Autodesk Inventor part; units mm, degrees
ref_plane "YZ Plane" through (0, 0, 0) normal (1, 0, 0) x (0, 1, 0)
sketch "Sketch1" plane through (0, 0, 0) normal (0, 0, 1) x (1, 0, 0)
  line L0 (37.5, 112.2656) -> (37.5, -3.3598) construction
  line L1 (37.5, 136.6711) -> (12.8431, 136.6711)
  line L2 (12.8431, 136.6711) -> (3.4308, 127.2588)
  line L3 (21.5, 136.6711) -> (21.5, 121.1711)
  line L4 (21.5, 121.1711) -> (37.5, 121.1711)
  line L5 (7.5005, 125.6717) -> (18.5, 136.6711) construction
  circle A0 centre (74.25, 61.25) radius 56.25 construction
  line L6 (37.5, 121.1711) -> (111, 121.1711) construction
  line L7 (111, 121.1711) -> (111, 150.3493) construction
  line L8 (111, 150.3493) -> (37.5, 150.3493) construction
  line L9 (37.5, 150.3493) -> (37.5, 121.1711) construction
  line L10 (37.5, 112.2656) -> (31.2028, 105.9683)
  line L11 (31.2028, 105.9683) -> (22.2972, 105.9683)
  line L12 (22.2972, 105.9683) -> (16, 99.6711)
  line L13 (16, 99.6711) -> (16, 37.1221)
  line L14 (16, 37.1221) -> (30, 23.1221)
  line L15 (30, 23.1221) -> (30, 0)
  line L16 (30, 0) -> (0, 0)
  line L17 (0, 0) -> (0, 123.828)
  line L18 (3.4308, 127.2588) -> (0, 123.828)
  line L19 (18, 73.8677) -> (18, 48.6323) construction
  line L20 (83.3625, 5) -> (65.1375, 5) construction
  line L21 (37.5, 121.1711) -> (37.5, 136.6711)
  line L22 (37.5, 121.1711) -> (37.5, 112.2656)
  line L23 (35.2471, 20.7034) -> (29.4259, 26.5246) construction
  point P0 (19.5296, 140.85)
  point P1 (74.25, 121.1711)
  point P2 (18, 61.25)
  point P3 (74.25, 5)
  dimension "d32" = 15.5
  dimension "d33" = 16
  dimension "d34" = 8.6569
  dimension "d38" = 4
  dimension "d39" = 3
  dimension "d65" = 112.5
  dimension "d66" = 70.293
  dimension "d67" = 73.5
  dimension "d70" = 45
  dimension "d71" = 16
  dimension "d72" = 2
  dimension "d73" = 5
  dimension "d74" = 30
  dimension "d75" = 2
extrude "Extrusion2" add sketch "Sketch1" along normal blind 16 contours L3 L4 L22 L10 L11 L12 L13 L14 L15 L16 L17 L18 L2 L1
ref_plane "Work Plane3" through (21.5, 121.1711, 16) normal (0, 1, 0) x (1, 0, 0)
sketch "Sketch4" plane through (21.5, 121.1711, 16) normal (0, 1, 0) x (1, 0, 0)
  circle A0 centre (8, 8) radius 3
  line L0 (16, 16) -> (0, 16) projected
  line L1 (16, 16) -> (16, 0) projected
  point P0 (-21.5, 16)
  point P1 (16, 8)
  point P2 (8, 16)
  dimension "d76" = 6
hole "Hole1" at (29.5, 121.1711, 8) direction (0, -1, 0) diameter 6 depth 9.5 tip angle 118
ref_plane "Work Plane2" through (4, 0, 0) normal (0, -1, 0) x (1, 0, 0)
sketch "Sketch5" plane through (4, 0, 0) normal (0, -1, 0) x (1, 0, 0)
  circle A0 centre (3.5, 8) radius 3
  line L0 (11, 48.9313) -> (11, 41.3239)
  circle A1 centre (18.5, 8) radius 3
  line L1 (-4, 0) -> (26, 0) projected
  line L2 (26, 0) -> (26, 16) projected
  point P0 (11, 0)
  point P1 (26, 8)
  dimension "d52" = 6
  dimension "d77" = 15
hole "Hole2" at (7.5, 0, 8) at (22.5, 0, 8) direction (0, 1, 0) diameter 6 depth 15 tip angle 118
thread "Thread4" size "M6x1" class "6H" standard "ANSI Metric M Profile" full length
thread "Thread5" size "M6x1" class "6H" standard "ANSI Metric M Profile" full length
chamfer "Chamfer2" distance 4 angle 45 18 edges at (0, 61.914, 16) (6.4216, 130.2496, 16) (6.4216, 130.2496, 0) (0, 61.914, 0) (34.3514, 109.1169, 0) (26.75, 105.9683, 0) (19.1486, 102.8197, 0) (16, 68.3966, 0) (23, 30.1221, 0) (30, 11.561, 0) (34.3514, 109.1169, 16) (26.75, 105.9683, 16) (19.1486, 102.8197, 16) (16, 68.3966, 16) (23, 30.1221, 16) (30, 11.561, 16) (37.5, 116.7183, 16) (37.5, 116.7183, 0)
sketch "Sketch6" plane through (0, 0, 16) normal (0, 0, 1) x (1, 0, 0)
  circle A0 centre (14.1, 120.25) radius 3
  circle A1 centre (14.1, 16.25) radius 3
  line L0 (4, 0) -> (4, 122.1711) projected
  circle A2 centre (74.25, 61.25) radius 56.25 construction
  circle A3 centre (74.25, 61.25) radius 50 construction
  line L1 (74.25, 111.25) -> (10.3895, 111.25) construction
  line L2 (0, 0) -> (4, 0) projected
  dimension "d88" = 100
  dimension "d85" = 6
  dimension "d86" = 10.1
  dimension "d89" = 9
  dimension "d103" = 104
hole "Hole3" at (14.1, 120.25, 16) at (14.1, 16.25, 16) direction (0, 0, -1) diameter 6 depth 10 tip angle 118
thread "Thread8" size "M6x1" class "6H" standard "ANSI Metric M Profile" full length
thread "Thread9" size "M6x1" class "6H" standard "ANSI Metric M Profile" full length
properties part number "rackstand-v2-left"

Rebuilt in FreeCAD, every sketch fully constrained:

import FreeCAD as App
import Part
import Sketcher
from FreeCAD import Vector
Q = App.Units.Quantity


def edges_at(feature, points):
    """Names of the edges that pass closest to the given points."""
    edges = feature.Shape.Edges
    near = lambda p: min(range(len(edges)), key=lambda i: edges[i].distToShape(Part.Vertex(*p))[0])
    return sorted({f"Edge{near(p) + 1}" for p in points})


def add_polygon(sketch, points):
    """Adds a closed chain of lines whose ends are joined by coincident constraints."""
    first, n = sketch.GeometryCount, len(points)
    for a, b in zip(points, points[1:] + points[:1]):
        sketch.addGeometry(Part.LineSegment(App.Vector(*a, 0), App.Vector(*b, 0)), False)
    for i in range(n):
        sketch.addConstraint(Sketcher.Constraint("Coincident", first + i, 2, first + (i + 1) % n, 1))

doc = App.newDocument("Part")
body = doc.addObject("PartDesign::Body", "Body")

# Sketch on XY plane
sketch1 = doc.addObject("Sketcher::SketchObject", "Sketch")
body.addObject(sketch1)
sketch1.AttachmentSupport = (doc.XY_Plane, [""])
sketch1.MapMode = "FlatFace"
add_polygon(sketch1, [(22, 121), (22, 137), (13, 137), (0, 124), (0, 0), (30, 0), (30, 23), (16, 37), (16, 100), (22, 106), (31, 106), (38, 112), (38, 121)])  # lines 0-12
sketch1.addConstraint([
    Sketcher.Constraint("Vertical", 0),
    Sketcher.Constraint("Horizontal", 1),
    Sketcher.Constraint("Vertical", 3),
    Sketcher.Constraint("Horizontal", 4),
    Sketcher.Constraint("Vertical", 5),
    Sketcher.Constraint("Vertical", 7),
    Sketcher.Constraint("Horizontal", 9),
    Sketcher.Constraint("Vertical", 11),
    Sketcher.Constraint("Horizontal", 12),
    Sketcher.Constraint("Coincident", 3, 2, -1, 1),
    Sketcher.Constraint("Perpendicular", 2, 6),
    Sketcher.Constraint("Perpendicular", 6, 8),
    Sketcher.Constraint("Parallel", 8, 10),
    Sketcher.Constraint("Equal", 9, 11),
    Sketcher.Constraint("Equal", 8, 10),
    Sketcher.Constraint("DistanceX", 4, 1, 4, 2, 30.0),
    Sketcher.Constraint("DistanceX", 12, 2, 12, 1, 16.0),
    Sketcher.Constraint("Angle", 8, Q("45 deg")),
    Sketcher.Constraint("DistanceY", 0, 1, 0, 2, 15.5),
    Sketcher.Constraint("DistanceX", -1, 1, 6, 2, 16.0),
    Sketcher.Constraint("DistanceX", 1, 2, 1, 1, 8.657),
    Sketcher.Constraint("DistanceY", 7, 2, 1, 2, 37.0),
    Sketcher.Constraint("DistanceY", 3, 2, 3, 1, 123.828),
    Sketcher.Constraint("DistanceY", 5, 1, 5, 2, 23.122),
    Sketcher.Constraint("DistanceX", 9, 1, 9, 2, 8.9056),
])
pad1 = doc.addObject("PartDesign::Pad", "Pad")
body.addObject(pad1)
pad1.Profile = sketch1
pad1.Length = 16

# Sketch on XZ plane
sketch2 = doc.addObject("Sketcher::SketchObject", "Sketch001")
body.addObject(sketch2)
sketch2.AttachmentSupport = (doc.XZ_Plane, [""])
sketch2.MapMode = "FlatFace"
sketch2.AttachmentOffset = App.Placement(Vector(0, 0, -121.1711), App.Rotation())
sketch2.addGeometry(Part.Circle(Vector(29.5, 8, 0), Vector(0, 0, 1), 3), False)
sketch2.addConstraint([
    Sketcher.Constraint("Diameter", 0, 6.0),
    Sketcher.Constraint("DistanceY", -1, 1, 0, 3, 8.0),
    Sketcher.Constraint("DistanceX", -1, 1, 0, 3, 29.5),
])
doc.recompute()
hole = doc.addObject("PartDesign::Hole", "Hole")
body.addObject(hole)
hole.Profile = sketch2
hole.ThreadType = "None"
hole.Diameter = 6
hole.DepthType = "Dimension"
hole.Depth = 9.5
hole.DrillPoint = "Angled"
hole.DrillPointAngle = 118
hole.Reversed = True

# Sketch on XZ plane
sketch3 = doc.addObject("Sketcher::SketchObject", "Sketch002")
body.addObject(sketch3)
sketch3.AttachmentSupport = (doc.XZ_Plane, [""])
sketch3.MapMode = "FlatFace"
sketch3.addGeometry([
    Part.Circle(Vector(7.5, 8, 0), Vector(0, 0, 1), 3),
    Part.Circle(Vector(22.5, 8, 0), Vector(0, 0, 1), 3),
], False)
sketch3.addConstraint([
    Sketcher.Constraint("Equal", 0, 1),
    Sketcher.Constraint("Horizontal", 0, 3, 1, 3),
    Sketcher.Constraint("Diameter", 0, 6.0),
    Sketcher.Constraint("DistanceY", -1, 1, 0, 3, 8.0),
    Sketcher.Constraint("DistanceX", 0, 3, 1, 3, 15.0),
    Sketcher.Constraint("DistanceX", -1, 1, 0, 3, 7.5),
])
doc.recompute()
hole2 = doc.addObject("PartDesign::Hole", "Hole001")
body.addObject(hole2)
hole2.Profile = sketch3
hole2.ThreadType = "None"
hole2.Diameter = 6
hole2.DepthType = "Dimension"
hole2.Depth = 15
hole2.DrillPoint = "Angled"
hole2.DrillPointAngle = 118
doc.recompute()

chamfer = doc.addObject("PartDesign::Chamfer", "Chamfer")
body.addObject(chamfer)
chamfer.Base = (hole2, edges_at(hole2, [
    (0, 61.914, 16),
    (6.422, 130.25, 16),
    (6.422, 130.25, 0),
    (0, 61.914, 0),
    (34.351, 109.117, 0),
    (26.75, 105.968, 0),
    (19.149, 102.82, 0),
    (16, 68.397, 0),
    (23, 30.122, 0),
    (30, 11.561, 0),
    (34.351, 109.117, 16),
    (26.75, 105.968, 16),
    (19.149, 102.82, 16),
    (16, 68.397, 16),
    (23, 30.122, 16),
    (30, 11.561, 16),
    (37.5, 116.718, 16),
    (37.5, 116.718, 0),
]))
chamfer.Size = 4

# Sketch on XY plane
sketch4 = doc.addObject("Sketcher::SketchObject", "Sketch003")
body.addObject(sketch4)
sketch4.AttachmentSupport = (doc.XY_Plane, [""])
sketch4.MapMode = "FlatFace"
sketch4.AttachmentOffset = App.Placement(Vector(0, 0, 16), App.Rotation())
sketch4.addGeometry([
    Part.Circle(Vector(14.1, 120.2, 0), Vector(0, 0, 1), 3),
    Part.Circle(Vector(14.1, 16.2, 0), Vector(0, 0, 1), 3),
], False)
sketch4.addConstraint([
    Sketcher.Constraint("Equal", 0, 1),
    Sketcher.Constraint("Vertical", 0, 3, 1, 3),
    Sketcher.Constraint("Diameter", 0, 6.0),
    Sketcher.Constraint("DistanceY", 1, 3, 0, 3, 104.0),
    Sketcher.Constraint("DistanceX", -1, 1, 0, 3, 14.1),
    Sketcher.Constraint("DistanceY", -1, 1, 0, 3, 120.25),
])
doc.recompute()
hole3 = doc.addObject("PartDesign::Hole", "Hole002")
body.addObject(hole3)
hole3.Profile = sketch4
hole3.ThreadType = "None"
hole3.Diameter = 6
hole3.DepthType = "Dimension"
hole3.Depth = 10
hole3.DrillPoint = "Angled"
hole3.DrillPointAngle = 118

doc.recompute()
